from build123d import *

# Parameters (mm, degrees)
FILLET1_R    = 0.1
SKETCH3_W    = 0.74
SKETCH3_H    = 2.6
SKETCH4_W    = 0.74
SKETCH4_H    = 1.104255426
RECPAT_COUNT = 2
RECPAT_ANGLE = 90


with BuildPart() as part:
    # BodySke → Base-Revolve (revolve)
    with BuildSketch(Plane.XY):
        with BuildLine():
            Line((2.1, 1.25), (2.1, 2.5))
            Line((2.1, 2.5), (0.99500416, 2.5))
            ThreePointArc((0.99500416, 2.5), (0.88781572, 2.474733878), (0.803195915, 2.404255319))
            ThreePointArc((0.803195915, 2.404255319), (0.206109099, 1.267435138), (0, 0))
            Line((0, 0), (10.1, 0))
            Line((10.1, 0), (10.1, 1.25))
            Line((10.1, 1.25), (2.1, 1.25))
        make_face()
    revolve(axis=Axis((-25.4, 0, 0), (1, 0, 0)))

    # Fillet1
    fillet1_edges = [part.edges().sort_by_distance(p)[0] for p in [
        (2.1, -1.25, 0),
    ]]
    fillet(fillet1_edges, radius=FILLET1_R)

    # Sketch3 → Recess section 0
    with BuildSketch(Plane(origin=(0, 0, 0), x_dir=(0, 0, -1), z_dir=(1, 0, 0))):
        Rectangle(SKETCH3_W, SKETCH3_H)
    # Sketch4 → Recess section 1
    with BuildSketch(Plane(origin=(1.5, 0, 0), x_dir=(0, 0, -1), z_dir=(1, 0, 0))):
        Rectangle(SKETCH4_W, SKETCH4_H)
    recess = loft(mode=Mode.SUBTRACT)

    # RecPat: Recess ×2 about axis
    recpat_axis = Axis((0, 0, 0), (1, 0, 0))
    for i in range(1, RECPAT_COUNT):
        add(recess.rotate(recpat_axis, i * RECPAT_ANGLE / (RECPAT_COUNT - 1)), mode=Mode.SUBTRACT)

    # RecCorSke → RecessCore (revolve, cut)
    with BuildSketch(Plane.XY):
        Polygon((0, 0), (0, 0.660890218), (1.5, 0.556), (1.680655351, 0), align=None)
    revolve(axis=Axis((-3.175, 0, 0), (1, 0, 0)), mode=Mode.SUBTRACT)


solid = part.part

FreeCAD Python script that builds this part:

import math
import FreeCAD as App
import Part
import Sketcher

V = App.Vector
Q = App.Units.Quantity


def edges_at(feature, points):
    """Names of the edges that pass closest to the given points."""
    edges = feature.Shape.Edges
    near = lambda p: min(range(len(edges)), key=lambda i: edges[i].distToShape(Part.Vertex(*p))[0])
    return sorted({f"Edge{near(p) + 1}" for p in points})

doc = App.newDocument("Part")
body = doc.addObject("PartDesign::Body", "Body")

# Sketch on XY plane
sketch1 = body.newObject("Sketcher::SketchObject", "Sketch")
sketch1.AttachmentSupport = (doc.getObject("XY_Plane"), [""])
sketch1.MapMode = "FlatFace"
sketch1.addGeometry([
    Part.LineSegment(V(2.1, 1.25, 0), V(2.1, 2.5, 0)),  # 0
    Part.LineSegment(V(2.1, 2.5, 0), V(1, 2.5, 0)),  # 1
    Part.ArcOfCircle(Part.Circle(V(1, 2.26, 0), V(0, 0, 1), 0.24), math.radians(90), math.radians(143)),  # 2
    Part.ArcOfCircle(Part.Circle(V(4, 0, 0), V(0, 0, 1), 4), math.radians(143), math.radians(180)),  # 3
    Part.LineSegment(V(0, 0, 0), V(10.1, 0, 0)),  # 4
    Part.LineSegment(V(10.1, 0, 0), V(10.1, 1.25, 0)),  # 5
    Part.LineSegment(V(10.1, 1.25, 0), V(2.1, 1.25, 0)),  # 6
], False)
sketch1.addConstraint([
    Sketcher.Constraint("Coincident", 0, 2, 1, 1),
    Sketcher.Constraint("Tangent", 1, 2, 2, 1),
    Sketcher.Constraint("Tangent", 2, 2, 3, 1),
    Sketcher.Constraint("Coincident", 3, 2, 4, 1),
    Sketcher.Constraint("Coincident", 4, 2, 5, 1),
    Sketcher.Constraint("Coincident", 5, 2, 6, 1),
    Sketcher.Constraint("Coincident", 6, 2, 0, 1),
    Sketcher.Constraint("Vertical", 0),
    Sketcher.Constraint("Horizontal", 1),
    Sketcher.Constraint("Horizontal", 4),
    Sketcher.Constraint("Vertical", 5),
    Sketcher.Constraint("Horizontal", 6),
    Sketcher.Constraint("Coincident", 3, 2, -1, 1),
    Sketcher.Constraint("PointOnObject", 3, 3, -1),
    Sketcher.Constraint("Equal", 0, 5),
    Sketcher.Constraint("Radius", 3, 4.0),
    Sketcher.Constraint("DistanceX", 6, 2, 6, 1, 8.0),
    Sketcher.Constraint("Radius", 2, 0.24),
    Sketcher.Constraint("DistanceX", 4, 1, 4, 2, 10.1),
    Sketcher.Constraint("DistanceY", 0, 1, 0, 2, 1.25),
])
revolution = body.newObject("PartDesign::Revolution", "Revolution")
revolution.Profile = sketch1
revolution.ReferenceAxis = (sketch1, ["H_Axis"])
revolution.Angle = 360
doc.recompute()

fillet = body.newObject("PartDesign::Fillet", "Fillet")
fillet.Base = (revolution, edges_at(revolution, [(2.1, -1.25, 0)]))
fillet.Radius = 0.1

# Sketch on YZ plane
sketch2 = body.newObject("Sketcher::SketchObject", "Sketch001")
sketch2.AttachmentSupport = (doc.getObject("YZ_Plane"), [""])
sketch2.MapMode = "FlatFace"
sketch2.addGeometry([
    Part.LineSegment(V(1.3, 0.4, 0), V(-1.3, 0.4, 0)),
    Part.LineSegment(V(-1.3, 0.4, 0), V(-1.3, -0.4, 0)),
    Part.LineSegment(V(-1.3, -0.4, 0), V(1.3, -0.4, 0)),
    Part.LineSegment(V(1.3, -0.4, 0), V(1.3, 0.4, 0)),
], False)
sketch2.addConstraint([
    Sketcher.Constraint("Coincident", 0, 2, 1, 1),
    Sketcher.Constraint("Coincident", 1, 2, 2, 1),
    Sketcher.Constraint("Coincident", 2, 2, 3, 1),
    Sketcher.Constraint("Coincident", 3, 2, 0, 1),
    Sketcher.Constraint("Horizontal", 0),
    Sketcher.Constraint("Vertical", 1),
    Sketcher.Constraint("Horizontal", 2),
    Sketcher.Constraint("Vertical", 3),
    Sketcher.Constraint("Symmetric", 0, 2, 2, 2, -1, 1),
    Sketcher.Constraint("DistanceX", 0, 2, 0, 1, 2.6),
    Sketcher.Constraint("DistanceY", 1, 2, 1, 1, 0.74),
])

# Sketch on YZ plane
sketch3 = body.newObject("Sketcher::SketchObject", "Sketch002")
sketch3.AttachmentSupport = (doc.getObject("YZ_Plane"), [""])
sketch3.MapMode = "FlatFace"
sketch3.AttachmentOffset = App.Placement(V(0, 0, 1.5), App.Rotation())
sketch3.addGeometry([
    Part.LineSegment(V(0.6, 0.4, 0), V(-0.6, 0.4, 0)),
    Part.LineSegment(V(-0.6, 0.4, 0), V(-0.6, -0.4, 0)),
    Part.LineSegment(V(-0.6, -0.4, 0), V(0.6, -0.4, 0)),
    Part.LineSegment(V(0.6, -0.4, 0), V(0.6, 0.4, 0)),
], False)
sketch3.addConstraint([
    Sketcher.Constraint("Coincident", 0, 2, 1, 1),
    Sketcher.Constraint("Coincident", 1, 2, 2, 1),
    Sketcher.Constraint("Coincident", 2, 2, 3, 1),
    Sketcher.Constraint("Coincident", 3, 2, 0, 1),
    Sketcher.Constraint("Horizontal", 0),
    Sketcher.Constraint("Vertical", 1),
    Sketcher.Constraint("Horizontal", 2),
    Sketcher.Constraint("Vertical", 3),
    Sketcher.Constraint("Symmetric", 0, 2, 2, 2, -1, 1),
    Sketcher.Constraint("DistanceY", 1, 2, 1, 1, 0.74),
    Sketcher.Constraint("DistanceX", 0, 2, 0, 1, 1.104255),
])

subtractiveloft = body.newObject("PartDesign::SubtractiveLoft", "SubtractiveLoft")
subtractiveloft.Profile = sketch2
subtractiveloft.Sections = [sketch3]
doc.recompute()

polarpattern = body.newObject("PartDesign::PolarPattern", "PolarPattern")
polarpattern.Originals = [subtractiveloft]
polarpattern.Axis = (doc.getObject("X_Axis"), [""])
polarpattern.Angle = 90
polarpattern.Occurrences = 2
body.Tip = polarpattern

# Sketch on XY plane
sketch4 = body.newObject("Sketcher::SketchObject", "Sketch003")
sketch4.AttachmentSupport = (doc.getObject("XY_Plane"), [""])
sketch4.MapMode = "FlatFace"
sketch4.addGeometry([
    Part.LineSegment(V(0, 0.7, 0), V(0, 0, 0)),
    Part.LineSegment(V(0, 0, 0), V(1.7, 0, 0)),
    Part.LineSegment(V(1.7, 0, 0), V(1.5, 0.6, 0)),
    Part.LineSegment(V(1.5, 0.6, 0), V(0, 0.7, 0)),
], False)
sketch4.addConstraint([
    Sketcher.Constraint("Coincident", 0, 2, 1, 1),
    Sketcher.Constraint("Coincident", 1, 2, 2, 1),
    Sketcher.Constraint("Coincident", 2, 2, 3, 1),
    Sketcher.Constraint("Coincident", 3, 2, 0, 1),
    Sketcher.Constraint("Vertical", 0),
    Sketcher.Constraint("Horizontal", 1),
    Sketcher.Constraint("Coincident", 0, 2, -1, 1),
    Sketcher.Constraint("Angle", 2, Q("108 deg")),
    Sketcher.Constraint("Angle", 3, Q("176 deg")),
    Sketcher.Constraint("DistanceX", -1, 1, 2, 2, 1.5),
    Sketcher.Constraint("DistanceY", -1, 1, 2, 2, 0.556),
])
groove = body.newObject("PartDesign::Groove", "Groove")
groove.Profile = sketch4
groove.ReferenceAxis = (sketch4, ["H_Axis"])
groove.Angle = 360

doc.recompute()
